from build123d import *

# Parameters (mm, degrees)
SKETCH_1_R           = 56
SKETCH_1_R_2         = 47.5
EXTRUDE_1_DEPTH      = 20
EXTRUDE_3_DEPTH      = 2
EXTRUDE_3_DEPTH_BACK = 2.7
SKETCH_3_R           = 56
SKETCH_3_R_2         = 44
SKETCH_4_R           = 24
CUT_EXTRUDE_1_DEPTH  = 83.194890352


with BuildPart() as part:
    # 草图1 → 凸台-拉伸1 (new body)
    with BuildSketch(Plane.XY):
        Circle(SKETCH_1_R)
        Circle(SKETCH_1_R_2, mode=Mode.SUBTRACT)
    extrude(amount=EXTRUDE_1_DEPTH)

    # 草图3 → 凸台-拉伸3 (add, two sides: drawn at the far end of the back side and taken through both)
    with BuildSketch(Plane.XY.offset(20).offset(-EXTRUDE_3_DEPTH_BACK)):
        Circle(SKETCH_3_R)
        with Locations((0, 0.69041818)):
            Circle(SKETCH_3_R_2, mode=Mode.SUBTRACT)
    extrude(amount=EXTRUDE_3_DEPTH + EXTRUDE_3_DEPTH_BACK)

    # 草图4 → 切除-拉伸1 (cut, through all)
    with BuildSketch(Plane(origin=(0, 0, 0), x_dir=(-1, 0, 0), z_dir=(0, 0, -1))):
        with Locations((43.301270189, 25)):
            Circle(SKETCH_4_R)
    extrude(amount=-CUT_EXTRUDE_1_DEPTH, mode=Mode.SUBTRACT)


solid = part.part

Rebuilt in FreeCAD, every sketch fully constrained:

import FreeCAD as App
import Part
import Sketcher

V = App.Vector
Q = App.Units.Quantity

doc = App.newDocument("Part")
params = doc.addObject("Spreadsheet::Sheet", "Params")
for row, (alias, value) in enumerate([
    ("sketch1_diameter", "112 mm"),
    ("sketch1_diameter2", "95 mm"),
    ("pad1_length", "20 mm"),
    ("sketch2_diameter", "112 mm"),
    ("sketch2_diameter2", "88 mm"),
    ("pad2_length", "2 mm"),
    ("pad2_length2", "2.7 mm"),
    ("sketch3_diameter", "48 mm"),
], start=1):
    params.set(f"A{row}", alias)
    params.set(f"B{row}", "=" + value)
    params.setAlias(f"B{row}", alias)

body = doc.addObject("PartDesign::Body", "Body")

# Sketch on XY plane
sketch1 = doc.addObject("Sketcher::SketchObject", "Sketch")
body.addObject(sketch1)
sketch1.AttachmentSupport = (doc.XY_Plane, [""])
sketch1.MapMode = "FlatFace"
sketch1.addGeometry([
    Part.Circle(V(0, 0, 0), V(0, 0, 1), 56),
    Part.Circle(V(0, 0, 0), V(0, 0, 1), 48),
], False)
sketch1.addConstraint([
    Sketcher.Constraint("Coincident", 0, 3, -1, 1),
    Sketcher.Constraint("Coincident", 1, 3, -1, 1),
    Sketcher.Constraint("Diameter", 0, Q("112 mm")),
    Sketcher.Constraint("Diameter", 1, Q("95 mm")),
])
sketch1.setExpression("Constraints[2]", "Params.sketch1_diameter")
sketch1.setExpression("Constraints[3]", "Params.sketch1_diameter2")
pad1 = doc.addObject("PartDesign::Pad", "Pad")
body.addObject(pad1)
pad1.Profile = sketch1
pad1.setExpression("Length", "Params.pad1_length")

# Sketch on XY plane
sketch2 = doc.addObject("Sketcher::SketchObject", "Sketch001")
body.addObject(sketch2)
sketch2.AttachmentSupport = (doc.XY_Plane, [""])
sketch2.MapMode = "FlatFace"
sketch2.AttachmentOffset = App.Placement(V(0, 0, 20), App.Rotation())
sketch2.addGeometry([
    Part.Circle(V(0, 0, 0), V(0, 0, 1), 56),
    Part.Circle(V(0, 1, 0), V(0, 0, 1), 44),
], False)
sketch2.addConstraint([
    Sketcher.Constraint("Coincident", 0, 3, -1, 1),
    Sketcher.Constraint("PointOnObject", 1, 3, -2),
    Sketcher.Constraint("Diameter", 0, Q("112 mm")),
    Sketcher.Constraint("Diameter", 1, Q("88 mm")),
    Sketcher.Constraint("DistanceY", -1, 1, 1, 3, Q("0.690418 mm")),
])
sketch2.setExpression("Constraints[2]", "Params.sketch2_diameter")
sketch2.setExpression("Constraints[3]", "Params.sketch2_diameter2")
pad2 = doc.addObject("PartDesign::Pad", "Pad001")
body.addObject(pad2)
pad2.Profile = sketch2
pad2.Type = "TwoLengths"
pad2.setExpression("Length", "Params.pad2_length")
pad2.setExpression("Length2", "Params.pad2_length2")

# Sketch on XY plane
sketch3 = doc.addObject("Sketcher::SketchObject", "Sketch002")
body.addObject(sketch3)
sketch3.AttachmentSupport = (doc.XY_Plane, [""])
sketch3.MapMode = "FlatFace"
sketch3.addGeometry(Part.Circle(V(-43, 25, 0), V(0, 0, 1), 24), False)
sketch3.addConstraint([
    Sketcher.Constraint("Diameter", 0, Q("48 mm")),
    Sketcher.Constraint("DistanceY", -1, 1, 0, 3, Q("25 mm")),
    Sketcher.Constraint("DistanceX", 0, 3, -1, 1, Q("43.30127 mm")),
])
sketch3.setExpression("Constraints[0]", "Params.sketch3_diameter")
pocket1 = doc.addObject("PartDesign::Pocket", "Pocket")
body.addObject(pocket1)
pocket1.Profile = sketch3
pocket1.Type = "ThroughAll"
pocket1.Reversed = True

doc.recompute()
